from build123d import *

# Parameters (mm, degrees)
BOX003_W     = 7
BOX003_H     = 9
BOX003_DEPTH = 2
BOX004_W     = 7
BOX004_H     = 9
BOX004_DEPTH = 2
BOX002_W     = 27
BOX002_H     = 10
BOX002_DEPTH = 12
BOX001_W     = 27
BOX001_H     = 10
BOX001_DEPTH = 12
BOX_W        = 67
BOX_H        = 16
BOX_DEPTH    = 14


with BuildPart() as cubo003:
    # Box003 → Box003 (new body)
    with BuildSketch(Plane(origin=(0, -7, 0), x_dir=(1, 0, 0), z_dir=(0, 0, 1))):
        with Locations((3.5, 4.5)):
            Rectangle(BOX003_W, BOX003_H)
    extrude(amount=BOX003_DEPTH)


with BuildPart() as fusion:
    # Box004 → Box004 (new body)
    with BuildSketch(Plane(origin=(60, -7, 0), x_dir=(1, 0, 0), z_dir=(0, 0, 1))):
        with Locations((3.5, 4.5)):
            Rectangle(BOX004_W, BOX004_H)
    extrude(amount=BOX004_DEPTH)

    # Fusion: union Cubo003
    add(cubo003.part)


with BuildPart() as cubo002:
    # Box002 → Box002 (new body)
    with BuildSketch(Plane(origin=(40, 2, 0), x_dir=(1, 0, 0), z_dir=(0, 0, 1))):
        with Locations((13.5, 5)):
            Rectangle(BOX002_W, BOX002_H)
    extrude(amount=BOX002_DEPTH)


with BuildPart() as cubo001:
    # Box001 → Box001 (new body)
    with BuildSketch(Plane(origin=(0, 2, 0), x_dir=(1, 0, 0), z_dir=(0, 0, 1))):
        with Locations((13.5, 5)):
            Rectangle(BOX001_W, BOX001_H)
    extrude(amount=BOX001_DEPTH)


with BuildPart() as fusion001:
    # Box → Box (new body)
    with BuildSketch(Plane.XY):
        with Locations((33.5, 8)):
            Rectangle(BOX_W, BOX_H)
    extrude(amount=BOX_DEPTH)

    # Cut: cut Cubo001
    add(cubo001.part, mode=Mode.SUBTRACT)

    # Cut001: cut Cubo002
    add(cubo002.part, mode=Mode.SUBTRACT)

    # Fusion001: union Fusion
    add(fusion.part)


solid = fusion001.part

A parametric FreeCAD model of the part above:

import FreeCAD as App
import Part
import Sketcher


def add_polygon(sketch, points):
    """Adds a closed chain of lines whose ends are joined by coincident constraints."""
    first, n = sketch.GeometryCount, len(points)
    for a, b in zip(points, points[1:] + points[:1]):
        sketch.addGeometry(Part.LineSegment(App.Vector(*a, 0), App.Vector(*b, 0)), False)
    for i in range(n):
        sketch.addConstraint(Sketcher.Constraint("Coincident", first + i, 2, first + (i + 1) % n, 1))

doc = App.newDocument("Part")
body = doc.addObject("PartDesign::Body", "Body")

# Sketch on XY plane
sketch1 = body.newObject("Sketcher::SketchObject", "Sketch")
sketch1.AttachmentSupport = (doc.getObject("XY_Plane"), [""])
sketch1.MapMode = "FlatFace"
add_polygon(sketch1, [(0, 2), (0, -7), (7, -7), (7, 2)])  # lines 0-3
sketch1.addConstraint([
    Sketcher.Constraint("Vertical", 0),
    Sketcher.Constraint("Horizontal", 1),
    Sketcher.Constraint("Vertical", 2),
    Sketcher.Constraint("Horizontal", 3),
    Sketcher.Constraint("PointOnObject", 0, 2, -2),
    Sketcher.Constraint("DistanceX", 1, 1, 1, 2, 7.0),
    Sketcher.Constraint("DistanceY", 0, 2, 0, 1, 9.0),
    Sketcher.Constraint("DistanceY", 0, 2, -1, 1, 7.0),
])
pad1 = body.newObject("PartDesign::Pad", "Pad")
pad1.Profile = sketch1
pad1.Length = 2
body2 = doc.addObject("PartDesign::Body", "Body001")
body2.AllowCompound = True

# Sketch on XY plane
sketch2 = body2.newObject("Sketcher::SketchObject", "Sketch001")
sketch2.AttachmentSupport = (doc.getObject("XY_Plane001"), [""])
sketch2.MapMode = "FlatFace"
add_polygon(sketch2, [(60, 2), (60, -7), (67, -7), (67, 2)])  # lines 0-3
sketch2.addConstraint([
    Sketcher.Constraint("Vertical", 0),
    Sketcher.Constraint("Horizontal", 1),
    Sketcher.Constraint("Vertical", 2),
    Sketcher.Constraint("Horizontal", 3),
    Sketcher.Constraint("DistanceX", 1, 1, 1, 2, 7.0),
    Sketcher.Constraint("DistanceY", 0, 2, 0, 1, 9.0),
    Sketcher.Constraint("DistanceX", -1, 1, 0, 2, 60.0),
    Sketcher.Constraint("DistanceY", 0, 2, -1, 1, 7.0),
])
pad2 = body2.newObject("PartDesign::Pad", "Pad001")
pad2.Profile = sketch2
pad2.Length = 2
doc.recompute()

boolean = body2.newObject("PartDesign::Boolean", "Boolean")
boolean.Type = "Fuse"
boolean.addObjects([body])
body3 = doc.addObject("PartDesign::Body", "Body002")

# Sketch on XY plane
sketch3 = body3.newObject("Sketcher::SketchObject", "Sketch002")
sketch3.AttachmentSupport = (doc.getObject("XY_Plane002"), [""])
sketch3.MapMode = "FlatFace"
add_polygon(sketch3, [(40, 12), (40, 2), (67, 2), (67, 12)])  # lines 0-3
sketch3.addConstraint([
    Sketcher.Constraint("Vertical", 0),
    Sketcher.Constraint("Horizontal", 1),
    Sketcher.Constraint("Vertical", 2),
    Sketcher.Constraint("Horizontal", 3),
    Sketcher.Constraint("DistanceX", 1, 1, 1, 2, 27.0),
    Sketcher.Constraint("DistanceY", 0, 2, 0, 1, 10.0),
    Sketcher.Constraint("DistanceX", -1, 1, 0, 2, 40.0),
    Sketcher.Constraint("DistanceY", -1, 1, 0, 2, 2.0),
])
pad3 = body3.newObject("PartDesign::Pad", "Pad002")
pad3.Profile = sketch3
pad3.Length = 12
body4 = doc.addObject("PartDesign::Body", "Body003")

# Sketch on XY plane
sketch4 = body4.newObject("Sketcher::SketchObject", "Sketch003")
sketch4.AttachmentSupport = (doc.getObject("XY_Plane003"), [""])
sketch4.MapMode = "FlatFace"
add_polygon(sketch4, [(0, 12), (0, 2), (27, 2), (27, 12)])  # lines 0-3
sketch4.addConstraint([
    Sketcher.Constraint("Vertical", 0),
    Sketcher.Constraint("Horizontal", 1),
    Sketcher.Constraint("Vertical", 2),
    Sketcher.Constraint("Horizontal", 3),
    Sketcher.Constraint("PointOnObject", 0, 2, -2),
    Sketcher.Constraint("DistanceX", 1, 1, 1, 2, 27.0),
    Sketcher.Constraint("DistanceY", 0, 2, 0, 1, 10.0),
    Sketcher.Constraint("DistanceY", -1, 1, 0, 2, 2.0),
])
pad4 = body4.newObject("PartDesign::Pad", "Pad003")
pad4.Profile = sketch4
pad4.Length = 12
body5 = doc.addObject("PartDesign::Body", "Body004")

# Sketch on XY plane
sketch5 = body5.newObject("Sketcher::SketchObject", "Sketch004")
sketch5.AttachmentSupport = (doc.getObject("XY_Plane004"), [""])
sketch5.MapMode = "FlatFace"
add_polygon(sketch5, [(0, 16), (0, 0), (67, 0), (67, 16)])  # lines 0-3
sketch5.addConstraint([
    Sketcher.Constraint("Vertical", 0),
    Sketcher.Constraint("Horizontal", 1),
    Sketcher.Constraint("Vertical", 2),
    Sketcher.Constraint("Horizontal", 3),
    Sketcher.Constraint("Coincident", 0, 2, -1, 1),
    Sketcher.Constraint("DistanceX", 1, 1, 1, 2, 67.0),
    Sketcher.Constraint("DistanceY", 0, 2, 0, 1, 16.0),
])
pad5 = body5.newObject("PartDesign::Pad", "Pad004")
pad5.Profile = sketch5
pad5.Length = 14
doc.recompute()

boolean2 = body5.newObject("PartDesign::Boolean", "Boolean001")
boolean2.Type = "Cut"
boolean2.addObjects([body4])
doc.recompute()

boolean3 = body5.newObject("PartDesign::Boolean", "Boolean002")
boolean3.Type = "Cut"
boolean3.addObjects([body3])
doc.recompute()

boolean4 = body5.newObject("PartDesign::Boolean", "Boolean003")
boolean4.Type = "Fuse"
boolean4.addObjects([body2])

doc.recompute()
